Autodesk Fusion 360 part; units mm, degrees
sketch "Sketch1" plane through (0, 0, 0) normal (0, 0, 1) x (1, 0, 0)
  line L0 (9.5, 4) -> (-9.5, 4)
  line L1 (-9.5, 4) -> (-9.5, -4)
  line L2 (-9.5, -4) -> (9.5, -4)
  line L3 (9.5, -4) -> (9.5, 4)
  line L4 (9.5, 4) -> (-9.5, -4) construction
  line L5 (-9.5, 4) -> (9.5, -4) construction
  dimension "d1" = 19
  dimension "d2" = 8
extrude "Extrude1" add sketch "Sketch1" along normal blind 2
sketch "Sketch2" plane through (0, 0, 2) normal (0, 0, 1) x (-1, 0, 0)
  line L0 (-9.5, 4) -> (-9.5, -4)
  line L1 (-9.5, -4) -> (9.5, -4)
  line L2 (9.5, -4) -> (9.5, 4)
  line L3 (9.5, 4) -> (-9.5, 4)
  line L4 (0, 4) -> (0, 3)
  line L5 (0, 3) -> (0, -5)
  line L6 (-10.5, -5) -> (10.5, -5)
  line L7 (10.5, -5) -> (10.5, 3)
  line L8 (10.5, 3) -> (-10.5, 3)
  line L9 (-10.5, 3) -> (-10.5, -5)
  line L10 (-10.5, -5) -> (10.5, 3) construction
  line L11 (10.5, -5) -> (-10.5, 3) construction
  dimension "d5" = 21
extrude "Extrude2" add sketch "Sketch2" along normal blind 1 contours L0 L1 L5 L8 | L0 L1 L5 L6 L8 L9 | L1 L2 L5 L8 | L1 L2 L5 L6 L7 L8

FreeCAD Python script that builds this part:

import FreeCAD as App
import Part
import Sketcher

doc = App.newDocument("Part")
body = doc.addObject("PartDesign::Body", "Body")

sketch1 = body.newObject("Sketcher::SketchObject", "Sketch")
sketch1.AttachmentSupport = (doc.getObject("XY_Plane"), [""])
sketch1.MapMode = "FlatFace"
sketch1.addGeometry(Part.LineSegment(App.Vector(10, -4, 0), App.Vector(10, 4, 0)), False)
sketch1.addGeometry(Part.LineSegment(App.Vector(10, 4, 0), App.Vector(-10, 4, 0)), False)
sketch1.addGeometry(Part.LineSegment(App.Vector(-10, 4, 0), App.Vector(-10, -4, 0)), False)
sketch1.addGeometry(Part.LineSegment(App.Vector(-10, -4, 0), App.Vector(10, -4, 0)), False)
sketch1.addConstraint(Sketcher.Constraint("Coincident", 0, 2, 1, 1))
sketch1.addConstraint(Sketcher.Constraint("Coincident", 1, 2, 2, 1))
sketch1.addConstraint(Sketcher.Constraint("Coincident", 2, 2, 3, 1))
sketch1.addConstraint(Sketcher.Constraint("Coincident", 3, 2, 0, 1))
sketch1.addConstraint(Sketcher.Constraint("Vertical", 0))
sketch1.addConstraint(Sketcher.Constraint("Horizontal", 1))
sketch1.addConstraint(Sketcher.Constraint("Vertical", 2))
sketch1.addConstraint(Sketcher.Constraint("Horizontal", 3))
sketch1.addConstraint(Sketcher.Constraint("Symmetric", 0, 2, 2, 2, -1, 1))
sketch1.addConstraint(Sketcher.Constraint("DistanceX", 1, 2, 1, 1, 19.0))
sketch1.addConstraint(Sketcher.Constraint("DistanceY", 0, 1, 0, 2, 8.0))
pad1 = body.newObject("PartDesign::Pad", "Pad")
pad1.Profile = sketch1
pad1.Length = 2

sketch2 = body.newObject("Sketcher::SketchObject", "Sketch001")
sketch2.AttachmentSupport = (doc.getObject("XY_Plane"), [""])
sketch2.MapMode = "FlatFace"
sketch2.AttachmentOffset = App.Placement(App.Vector(0, 0, 2), App.Rotation())
sketch2.addGeometry(Part.LineSegment(App.Vector(10, -3, 0), App.Vector(10, 5, 0)), False)
sketch2.addGeometry(Part.LineSegment(App.Vector(10, 5, 0), App.Vector(-10, 5, 0)), False)
sketch2.addGeometry(Part.LineSegment(App.Vector(-10, 5, 0), App.Vector(-10, -3, 0)), False)
sketch2.addGeometry(Part.LineSegment(App.Vector(-10, -3, 0), App.Vector(10, -3, 0)), False)
sketch2.addConstraint(Sketcher.Constraint("Coincident", 0, 2, 1, 1))
sketch2.addConstraint(Sketcher.Constraint("Coincident", 1, 2, 2, 1))
sketch2.addConstraint(Sketcher.Constraint("Coincident", 2, 2, 3, 1))
sketch2.addConstraint(Sketcher.Constraint("Coincident", 3, 2, 0, 1))
sketch2.addConstraint(Sketcher.Constraint("Vertical", 0))
sketch2.addConstraint(Sketcher.Constraint("Horizontal", 1))
sketch2.addConstraint(Sketcher.Constraint("Vertical", 2))
sketch2.addConstraint(Sketcher.Constraint("Horizontal", 3))
sketch2.addConstraint(Sketcher.Constraint("DistanceX", 1, 2, 1, 1, 21.0))
sketch2.addConstraint(Sketcher.Constraint("DistanceY", 0, 1, 0, 2, 8.0))
sketch2.addConstraint(Sketcher.Constraint("DistanceY", -1, 1, 0, 2, 5.0))
sketch2.addConstraint(Sketcher.Constraint("DistanceX", -1, 1, 0, 2, 10.5))
pad2 = body.newObject("PartDesign::Pad", "Pad001")
pad2.Profile = sketch2
pad2.Length = 1

doc.recompute()
